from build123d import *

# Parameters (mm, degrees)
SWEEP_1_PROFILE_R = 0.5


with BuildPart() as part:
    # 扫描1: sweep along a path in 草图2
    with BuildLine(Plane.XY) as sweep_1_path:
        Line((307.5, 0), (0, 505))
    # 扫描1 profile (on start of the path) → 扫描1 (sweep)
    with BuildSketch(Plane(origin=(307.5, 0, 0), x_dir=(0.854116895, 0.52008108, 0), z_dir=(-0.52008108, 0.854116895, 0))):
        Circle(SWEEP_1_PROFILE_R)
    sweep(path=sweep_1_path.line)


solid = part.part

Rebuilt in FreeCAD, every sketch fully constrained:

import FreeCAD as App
import Part
import Sketcher
from FreeCAD import Vector

doc = App.newDocument("Part")
body = doc.addObject("PartDesign::Body", "Body")

sketch1 = doc.addObject("Sketcher::SketchObject", "Sketch")
body.addObject(sketch1)
sketch1.Placement = App.Placement(Vector(307.5, 0, 0), App.Rotation(Vector(0.854116895, 0.52008108, 0), Vector(0, 0, -1), Vector(-0.52008108, 0.854116895, 0), "ZXY"))
sketch1.addGeometry(Part.Circle(Vector(0, 0, 0), Vector(0, 0, 1), 0.5), False)
sketch1.addConstraint([
    Sketcher.Constraint("Coincident", 0, 3, -1, 1),
    Sketcher.Constraint("Diameter", 0, 1.0),
])

sketch2 = doc.addObject("Sketcher::SketchObject", "Sketch001")
body.addObject(sketch2)
sketch2.Placement = App.Placement(Vector(224.326069, 136.594586, 0), App.Rotation(Vector(-0.52008108, 0.854116895, 0), Vector(0, 0, 1), Vector(0.854116895, 0.52008108, 0), "ZXY"))
sketch2.addGeometry(Part.LineSegment(Vector(-160, 0, 0), Vector(431, 0, 0)), False)
sketch2.addConstraint([
    Sketcher.Constraint("Horizontal", 0),
    Sketcher.Constraint("PointOnObject", 0, 1, -1),
    Sketcher.Constraint("DistanceX", 0, 1, 0, 2, 591.253964),
    Sketcher.Constraint("DistanceX", 0, 1, -1, 1, 159.924932),
])
doc.recompute()

additivepipe = doc.addObject("PartDesign::AdditivePipe", "AdditivePipe")
body.addObject(additivepipe)
additivepipe.Profile = sketch1
additivepipe.Spine = (sketch2, ["Edge1"])

doc.recompute()
